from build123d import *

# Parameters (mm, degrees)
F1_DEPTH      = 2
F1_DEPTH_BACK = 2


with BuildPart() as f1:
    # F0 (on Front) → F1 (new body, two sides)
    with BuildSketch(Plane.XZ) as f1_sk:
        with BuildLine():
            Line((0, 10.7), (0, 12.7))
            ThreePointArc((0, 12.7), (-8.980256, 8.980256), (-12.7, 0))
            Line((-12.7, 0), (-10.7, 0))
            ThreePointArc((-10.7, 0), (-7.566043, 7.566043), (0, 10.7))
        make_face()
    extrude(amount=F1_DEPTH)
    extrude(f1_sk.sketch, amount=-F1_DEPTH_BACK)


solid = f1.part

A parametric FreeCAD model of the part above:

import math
import FreeCAD as App
import Part
import Sketcher
from FreeCAD import Vector
Q = App.Units.Quantity

doc = App.newDocument("Part")
body = doc.addObject("PartDesign::Body", "Body")

sketch1 = doc.addObject("Sketcher::SketchObject", "Sketch")
body.addObject(sketch1)
sketch1.AttachmentSupport = (doc.XZ_Plane, [""])
sketch1.MapMode = "FlatFace"
sketch1.addGeometry(Part.LineSegment(Vector(0, 10.7, 0), Vector(0, 12.7, 0)), False)
sketch1.addGeometry(Part.ArcOfCircle(Part.Circle(Vector(0, 0, 0), Vector(0, 0, 1), 12.7), math.radians(90.000002), math.radians(179.999998)), False)
sketch1.addGeometry(Part.LineSegment(Vector(-12.7, 0, 0), Vector(-10.7, 0, 0)), False)
sketch1.addGeometry(Part.ArcOfCircle(Part.Circle(Vector(-0.000002, 0.000002, 0), Vector(0, 0, 1), 10.699998), math.radians(89.999992), math.radians(180.000008)), False)
sketch1.addConstraint(Sketcher.Constraint("Coincident", 0, 2, 1, 1))
sketch1.addConstraint(Sketcher.Constraint("Coincident", 1, 2, 2, 1))
sketch1.addConstraint(Sketcher.Constraint("Coincident", 2, 2, 3, 2))
sketch1.addConstraint(Sketcher.Constraint("Coincident", 3, 1, 0, 1))
sketch1.addConstraint(Sketcher.Constraint("Vertical", 0))
sketch1.addConstraint(Sketcher.Constraint("Horizontal", 2))
sketch1.addConstraint(Sketcher.Constraint("Coincident", 1, 3, -1, 1))
sketch1.addConstraint(Sketcher.Constraint("Coincident", 3, 3, -1, 1))
sketch1.addConstraint(Sketcher.Constraint("PointOnObject", 0, 2, -2))
sketch1.addConstraint(Sketcher.Constraint("PointOnObject", 1, 2, -1))
sketch1.addConstraint(Sketcher.Constraint("Radius", 1, Q("12.7 mm")))
sketch1.addConstraint(Sketcher.Constraint("Radius", 3, Q("10.699998 mm")))
pad1 = doc.addObject("PartDesign::Pad", "Pad")
body.addObject(pad1)
pad1.Profile = sketch1
pad1.Type = "TwoLengths"
pad1.Length = 2
pad1.Length2 = 2

doc.recompute()
